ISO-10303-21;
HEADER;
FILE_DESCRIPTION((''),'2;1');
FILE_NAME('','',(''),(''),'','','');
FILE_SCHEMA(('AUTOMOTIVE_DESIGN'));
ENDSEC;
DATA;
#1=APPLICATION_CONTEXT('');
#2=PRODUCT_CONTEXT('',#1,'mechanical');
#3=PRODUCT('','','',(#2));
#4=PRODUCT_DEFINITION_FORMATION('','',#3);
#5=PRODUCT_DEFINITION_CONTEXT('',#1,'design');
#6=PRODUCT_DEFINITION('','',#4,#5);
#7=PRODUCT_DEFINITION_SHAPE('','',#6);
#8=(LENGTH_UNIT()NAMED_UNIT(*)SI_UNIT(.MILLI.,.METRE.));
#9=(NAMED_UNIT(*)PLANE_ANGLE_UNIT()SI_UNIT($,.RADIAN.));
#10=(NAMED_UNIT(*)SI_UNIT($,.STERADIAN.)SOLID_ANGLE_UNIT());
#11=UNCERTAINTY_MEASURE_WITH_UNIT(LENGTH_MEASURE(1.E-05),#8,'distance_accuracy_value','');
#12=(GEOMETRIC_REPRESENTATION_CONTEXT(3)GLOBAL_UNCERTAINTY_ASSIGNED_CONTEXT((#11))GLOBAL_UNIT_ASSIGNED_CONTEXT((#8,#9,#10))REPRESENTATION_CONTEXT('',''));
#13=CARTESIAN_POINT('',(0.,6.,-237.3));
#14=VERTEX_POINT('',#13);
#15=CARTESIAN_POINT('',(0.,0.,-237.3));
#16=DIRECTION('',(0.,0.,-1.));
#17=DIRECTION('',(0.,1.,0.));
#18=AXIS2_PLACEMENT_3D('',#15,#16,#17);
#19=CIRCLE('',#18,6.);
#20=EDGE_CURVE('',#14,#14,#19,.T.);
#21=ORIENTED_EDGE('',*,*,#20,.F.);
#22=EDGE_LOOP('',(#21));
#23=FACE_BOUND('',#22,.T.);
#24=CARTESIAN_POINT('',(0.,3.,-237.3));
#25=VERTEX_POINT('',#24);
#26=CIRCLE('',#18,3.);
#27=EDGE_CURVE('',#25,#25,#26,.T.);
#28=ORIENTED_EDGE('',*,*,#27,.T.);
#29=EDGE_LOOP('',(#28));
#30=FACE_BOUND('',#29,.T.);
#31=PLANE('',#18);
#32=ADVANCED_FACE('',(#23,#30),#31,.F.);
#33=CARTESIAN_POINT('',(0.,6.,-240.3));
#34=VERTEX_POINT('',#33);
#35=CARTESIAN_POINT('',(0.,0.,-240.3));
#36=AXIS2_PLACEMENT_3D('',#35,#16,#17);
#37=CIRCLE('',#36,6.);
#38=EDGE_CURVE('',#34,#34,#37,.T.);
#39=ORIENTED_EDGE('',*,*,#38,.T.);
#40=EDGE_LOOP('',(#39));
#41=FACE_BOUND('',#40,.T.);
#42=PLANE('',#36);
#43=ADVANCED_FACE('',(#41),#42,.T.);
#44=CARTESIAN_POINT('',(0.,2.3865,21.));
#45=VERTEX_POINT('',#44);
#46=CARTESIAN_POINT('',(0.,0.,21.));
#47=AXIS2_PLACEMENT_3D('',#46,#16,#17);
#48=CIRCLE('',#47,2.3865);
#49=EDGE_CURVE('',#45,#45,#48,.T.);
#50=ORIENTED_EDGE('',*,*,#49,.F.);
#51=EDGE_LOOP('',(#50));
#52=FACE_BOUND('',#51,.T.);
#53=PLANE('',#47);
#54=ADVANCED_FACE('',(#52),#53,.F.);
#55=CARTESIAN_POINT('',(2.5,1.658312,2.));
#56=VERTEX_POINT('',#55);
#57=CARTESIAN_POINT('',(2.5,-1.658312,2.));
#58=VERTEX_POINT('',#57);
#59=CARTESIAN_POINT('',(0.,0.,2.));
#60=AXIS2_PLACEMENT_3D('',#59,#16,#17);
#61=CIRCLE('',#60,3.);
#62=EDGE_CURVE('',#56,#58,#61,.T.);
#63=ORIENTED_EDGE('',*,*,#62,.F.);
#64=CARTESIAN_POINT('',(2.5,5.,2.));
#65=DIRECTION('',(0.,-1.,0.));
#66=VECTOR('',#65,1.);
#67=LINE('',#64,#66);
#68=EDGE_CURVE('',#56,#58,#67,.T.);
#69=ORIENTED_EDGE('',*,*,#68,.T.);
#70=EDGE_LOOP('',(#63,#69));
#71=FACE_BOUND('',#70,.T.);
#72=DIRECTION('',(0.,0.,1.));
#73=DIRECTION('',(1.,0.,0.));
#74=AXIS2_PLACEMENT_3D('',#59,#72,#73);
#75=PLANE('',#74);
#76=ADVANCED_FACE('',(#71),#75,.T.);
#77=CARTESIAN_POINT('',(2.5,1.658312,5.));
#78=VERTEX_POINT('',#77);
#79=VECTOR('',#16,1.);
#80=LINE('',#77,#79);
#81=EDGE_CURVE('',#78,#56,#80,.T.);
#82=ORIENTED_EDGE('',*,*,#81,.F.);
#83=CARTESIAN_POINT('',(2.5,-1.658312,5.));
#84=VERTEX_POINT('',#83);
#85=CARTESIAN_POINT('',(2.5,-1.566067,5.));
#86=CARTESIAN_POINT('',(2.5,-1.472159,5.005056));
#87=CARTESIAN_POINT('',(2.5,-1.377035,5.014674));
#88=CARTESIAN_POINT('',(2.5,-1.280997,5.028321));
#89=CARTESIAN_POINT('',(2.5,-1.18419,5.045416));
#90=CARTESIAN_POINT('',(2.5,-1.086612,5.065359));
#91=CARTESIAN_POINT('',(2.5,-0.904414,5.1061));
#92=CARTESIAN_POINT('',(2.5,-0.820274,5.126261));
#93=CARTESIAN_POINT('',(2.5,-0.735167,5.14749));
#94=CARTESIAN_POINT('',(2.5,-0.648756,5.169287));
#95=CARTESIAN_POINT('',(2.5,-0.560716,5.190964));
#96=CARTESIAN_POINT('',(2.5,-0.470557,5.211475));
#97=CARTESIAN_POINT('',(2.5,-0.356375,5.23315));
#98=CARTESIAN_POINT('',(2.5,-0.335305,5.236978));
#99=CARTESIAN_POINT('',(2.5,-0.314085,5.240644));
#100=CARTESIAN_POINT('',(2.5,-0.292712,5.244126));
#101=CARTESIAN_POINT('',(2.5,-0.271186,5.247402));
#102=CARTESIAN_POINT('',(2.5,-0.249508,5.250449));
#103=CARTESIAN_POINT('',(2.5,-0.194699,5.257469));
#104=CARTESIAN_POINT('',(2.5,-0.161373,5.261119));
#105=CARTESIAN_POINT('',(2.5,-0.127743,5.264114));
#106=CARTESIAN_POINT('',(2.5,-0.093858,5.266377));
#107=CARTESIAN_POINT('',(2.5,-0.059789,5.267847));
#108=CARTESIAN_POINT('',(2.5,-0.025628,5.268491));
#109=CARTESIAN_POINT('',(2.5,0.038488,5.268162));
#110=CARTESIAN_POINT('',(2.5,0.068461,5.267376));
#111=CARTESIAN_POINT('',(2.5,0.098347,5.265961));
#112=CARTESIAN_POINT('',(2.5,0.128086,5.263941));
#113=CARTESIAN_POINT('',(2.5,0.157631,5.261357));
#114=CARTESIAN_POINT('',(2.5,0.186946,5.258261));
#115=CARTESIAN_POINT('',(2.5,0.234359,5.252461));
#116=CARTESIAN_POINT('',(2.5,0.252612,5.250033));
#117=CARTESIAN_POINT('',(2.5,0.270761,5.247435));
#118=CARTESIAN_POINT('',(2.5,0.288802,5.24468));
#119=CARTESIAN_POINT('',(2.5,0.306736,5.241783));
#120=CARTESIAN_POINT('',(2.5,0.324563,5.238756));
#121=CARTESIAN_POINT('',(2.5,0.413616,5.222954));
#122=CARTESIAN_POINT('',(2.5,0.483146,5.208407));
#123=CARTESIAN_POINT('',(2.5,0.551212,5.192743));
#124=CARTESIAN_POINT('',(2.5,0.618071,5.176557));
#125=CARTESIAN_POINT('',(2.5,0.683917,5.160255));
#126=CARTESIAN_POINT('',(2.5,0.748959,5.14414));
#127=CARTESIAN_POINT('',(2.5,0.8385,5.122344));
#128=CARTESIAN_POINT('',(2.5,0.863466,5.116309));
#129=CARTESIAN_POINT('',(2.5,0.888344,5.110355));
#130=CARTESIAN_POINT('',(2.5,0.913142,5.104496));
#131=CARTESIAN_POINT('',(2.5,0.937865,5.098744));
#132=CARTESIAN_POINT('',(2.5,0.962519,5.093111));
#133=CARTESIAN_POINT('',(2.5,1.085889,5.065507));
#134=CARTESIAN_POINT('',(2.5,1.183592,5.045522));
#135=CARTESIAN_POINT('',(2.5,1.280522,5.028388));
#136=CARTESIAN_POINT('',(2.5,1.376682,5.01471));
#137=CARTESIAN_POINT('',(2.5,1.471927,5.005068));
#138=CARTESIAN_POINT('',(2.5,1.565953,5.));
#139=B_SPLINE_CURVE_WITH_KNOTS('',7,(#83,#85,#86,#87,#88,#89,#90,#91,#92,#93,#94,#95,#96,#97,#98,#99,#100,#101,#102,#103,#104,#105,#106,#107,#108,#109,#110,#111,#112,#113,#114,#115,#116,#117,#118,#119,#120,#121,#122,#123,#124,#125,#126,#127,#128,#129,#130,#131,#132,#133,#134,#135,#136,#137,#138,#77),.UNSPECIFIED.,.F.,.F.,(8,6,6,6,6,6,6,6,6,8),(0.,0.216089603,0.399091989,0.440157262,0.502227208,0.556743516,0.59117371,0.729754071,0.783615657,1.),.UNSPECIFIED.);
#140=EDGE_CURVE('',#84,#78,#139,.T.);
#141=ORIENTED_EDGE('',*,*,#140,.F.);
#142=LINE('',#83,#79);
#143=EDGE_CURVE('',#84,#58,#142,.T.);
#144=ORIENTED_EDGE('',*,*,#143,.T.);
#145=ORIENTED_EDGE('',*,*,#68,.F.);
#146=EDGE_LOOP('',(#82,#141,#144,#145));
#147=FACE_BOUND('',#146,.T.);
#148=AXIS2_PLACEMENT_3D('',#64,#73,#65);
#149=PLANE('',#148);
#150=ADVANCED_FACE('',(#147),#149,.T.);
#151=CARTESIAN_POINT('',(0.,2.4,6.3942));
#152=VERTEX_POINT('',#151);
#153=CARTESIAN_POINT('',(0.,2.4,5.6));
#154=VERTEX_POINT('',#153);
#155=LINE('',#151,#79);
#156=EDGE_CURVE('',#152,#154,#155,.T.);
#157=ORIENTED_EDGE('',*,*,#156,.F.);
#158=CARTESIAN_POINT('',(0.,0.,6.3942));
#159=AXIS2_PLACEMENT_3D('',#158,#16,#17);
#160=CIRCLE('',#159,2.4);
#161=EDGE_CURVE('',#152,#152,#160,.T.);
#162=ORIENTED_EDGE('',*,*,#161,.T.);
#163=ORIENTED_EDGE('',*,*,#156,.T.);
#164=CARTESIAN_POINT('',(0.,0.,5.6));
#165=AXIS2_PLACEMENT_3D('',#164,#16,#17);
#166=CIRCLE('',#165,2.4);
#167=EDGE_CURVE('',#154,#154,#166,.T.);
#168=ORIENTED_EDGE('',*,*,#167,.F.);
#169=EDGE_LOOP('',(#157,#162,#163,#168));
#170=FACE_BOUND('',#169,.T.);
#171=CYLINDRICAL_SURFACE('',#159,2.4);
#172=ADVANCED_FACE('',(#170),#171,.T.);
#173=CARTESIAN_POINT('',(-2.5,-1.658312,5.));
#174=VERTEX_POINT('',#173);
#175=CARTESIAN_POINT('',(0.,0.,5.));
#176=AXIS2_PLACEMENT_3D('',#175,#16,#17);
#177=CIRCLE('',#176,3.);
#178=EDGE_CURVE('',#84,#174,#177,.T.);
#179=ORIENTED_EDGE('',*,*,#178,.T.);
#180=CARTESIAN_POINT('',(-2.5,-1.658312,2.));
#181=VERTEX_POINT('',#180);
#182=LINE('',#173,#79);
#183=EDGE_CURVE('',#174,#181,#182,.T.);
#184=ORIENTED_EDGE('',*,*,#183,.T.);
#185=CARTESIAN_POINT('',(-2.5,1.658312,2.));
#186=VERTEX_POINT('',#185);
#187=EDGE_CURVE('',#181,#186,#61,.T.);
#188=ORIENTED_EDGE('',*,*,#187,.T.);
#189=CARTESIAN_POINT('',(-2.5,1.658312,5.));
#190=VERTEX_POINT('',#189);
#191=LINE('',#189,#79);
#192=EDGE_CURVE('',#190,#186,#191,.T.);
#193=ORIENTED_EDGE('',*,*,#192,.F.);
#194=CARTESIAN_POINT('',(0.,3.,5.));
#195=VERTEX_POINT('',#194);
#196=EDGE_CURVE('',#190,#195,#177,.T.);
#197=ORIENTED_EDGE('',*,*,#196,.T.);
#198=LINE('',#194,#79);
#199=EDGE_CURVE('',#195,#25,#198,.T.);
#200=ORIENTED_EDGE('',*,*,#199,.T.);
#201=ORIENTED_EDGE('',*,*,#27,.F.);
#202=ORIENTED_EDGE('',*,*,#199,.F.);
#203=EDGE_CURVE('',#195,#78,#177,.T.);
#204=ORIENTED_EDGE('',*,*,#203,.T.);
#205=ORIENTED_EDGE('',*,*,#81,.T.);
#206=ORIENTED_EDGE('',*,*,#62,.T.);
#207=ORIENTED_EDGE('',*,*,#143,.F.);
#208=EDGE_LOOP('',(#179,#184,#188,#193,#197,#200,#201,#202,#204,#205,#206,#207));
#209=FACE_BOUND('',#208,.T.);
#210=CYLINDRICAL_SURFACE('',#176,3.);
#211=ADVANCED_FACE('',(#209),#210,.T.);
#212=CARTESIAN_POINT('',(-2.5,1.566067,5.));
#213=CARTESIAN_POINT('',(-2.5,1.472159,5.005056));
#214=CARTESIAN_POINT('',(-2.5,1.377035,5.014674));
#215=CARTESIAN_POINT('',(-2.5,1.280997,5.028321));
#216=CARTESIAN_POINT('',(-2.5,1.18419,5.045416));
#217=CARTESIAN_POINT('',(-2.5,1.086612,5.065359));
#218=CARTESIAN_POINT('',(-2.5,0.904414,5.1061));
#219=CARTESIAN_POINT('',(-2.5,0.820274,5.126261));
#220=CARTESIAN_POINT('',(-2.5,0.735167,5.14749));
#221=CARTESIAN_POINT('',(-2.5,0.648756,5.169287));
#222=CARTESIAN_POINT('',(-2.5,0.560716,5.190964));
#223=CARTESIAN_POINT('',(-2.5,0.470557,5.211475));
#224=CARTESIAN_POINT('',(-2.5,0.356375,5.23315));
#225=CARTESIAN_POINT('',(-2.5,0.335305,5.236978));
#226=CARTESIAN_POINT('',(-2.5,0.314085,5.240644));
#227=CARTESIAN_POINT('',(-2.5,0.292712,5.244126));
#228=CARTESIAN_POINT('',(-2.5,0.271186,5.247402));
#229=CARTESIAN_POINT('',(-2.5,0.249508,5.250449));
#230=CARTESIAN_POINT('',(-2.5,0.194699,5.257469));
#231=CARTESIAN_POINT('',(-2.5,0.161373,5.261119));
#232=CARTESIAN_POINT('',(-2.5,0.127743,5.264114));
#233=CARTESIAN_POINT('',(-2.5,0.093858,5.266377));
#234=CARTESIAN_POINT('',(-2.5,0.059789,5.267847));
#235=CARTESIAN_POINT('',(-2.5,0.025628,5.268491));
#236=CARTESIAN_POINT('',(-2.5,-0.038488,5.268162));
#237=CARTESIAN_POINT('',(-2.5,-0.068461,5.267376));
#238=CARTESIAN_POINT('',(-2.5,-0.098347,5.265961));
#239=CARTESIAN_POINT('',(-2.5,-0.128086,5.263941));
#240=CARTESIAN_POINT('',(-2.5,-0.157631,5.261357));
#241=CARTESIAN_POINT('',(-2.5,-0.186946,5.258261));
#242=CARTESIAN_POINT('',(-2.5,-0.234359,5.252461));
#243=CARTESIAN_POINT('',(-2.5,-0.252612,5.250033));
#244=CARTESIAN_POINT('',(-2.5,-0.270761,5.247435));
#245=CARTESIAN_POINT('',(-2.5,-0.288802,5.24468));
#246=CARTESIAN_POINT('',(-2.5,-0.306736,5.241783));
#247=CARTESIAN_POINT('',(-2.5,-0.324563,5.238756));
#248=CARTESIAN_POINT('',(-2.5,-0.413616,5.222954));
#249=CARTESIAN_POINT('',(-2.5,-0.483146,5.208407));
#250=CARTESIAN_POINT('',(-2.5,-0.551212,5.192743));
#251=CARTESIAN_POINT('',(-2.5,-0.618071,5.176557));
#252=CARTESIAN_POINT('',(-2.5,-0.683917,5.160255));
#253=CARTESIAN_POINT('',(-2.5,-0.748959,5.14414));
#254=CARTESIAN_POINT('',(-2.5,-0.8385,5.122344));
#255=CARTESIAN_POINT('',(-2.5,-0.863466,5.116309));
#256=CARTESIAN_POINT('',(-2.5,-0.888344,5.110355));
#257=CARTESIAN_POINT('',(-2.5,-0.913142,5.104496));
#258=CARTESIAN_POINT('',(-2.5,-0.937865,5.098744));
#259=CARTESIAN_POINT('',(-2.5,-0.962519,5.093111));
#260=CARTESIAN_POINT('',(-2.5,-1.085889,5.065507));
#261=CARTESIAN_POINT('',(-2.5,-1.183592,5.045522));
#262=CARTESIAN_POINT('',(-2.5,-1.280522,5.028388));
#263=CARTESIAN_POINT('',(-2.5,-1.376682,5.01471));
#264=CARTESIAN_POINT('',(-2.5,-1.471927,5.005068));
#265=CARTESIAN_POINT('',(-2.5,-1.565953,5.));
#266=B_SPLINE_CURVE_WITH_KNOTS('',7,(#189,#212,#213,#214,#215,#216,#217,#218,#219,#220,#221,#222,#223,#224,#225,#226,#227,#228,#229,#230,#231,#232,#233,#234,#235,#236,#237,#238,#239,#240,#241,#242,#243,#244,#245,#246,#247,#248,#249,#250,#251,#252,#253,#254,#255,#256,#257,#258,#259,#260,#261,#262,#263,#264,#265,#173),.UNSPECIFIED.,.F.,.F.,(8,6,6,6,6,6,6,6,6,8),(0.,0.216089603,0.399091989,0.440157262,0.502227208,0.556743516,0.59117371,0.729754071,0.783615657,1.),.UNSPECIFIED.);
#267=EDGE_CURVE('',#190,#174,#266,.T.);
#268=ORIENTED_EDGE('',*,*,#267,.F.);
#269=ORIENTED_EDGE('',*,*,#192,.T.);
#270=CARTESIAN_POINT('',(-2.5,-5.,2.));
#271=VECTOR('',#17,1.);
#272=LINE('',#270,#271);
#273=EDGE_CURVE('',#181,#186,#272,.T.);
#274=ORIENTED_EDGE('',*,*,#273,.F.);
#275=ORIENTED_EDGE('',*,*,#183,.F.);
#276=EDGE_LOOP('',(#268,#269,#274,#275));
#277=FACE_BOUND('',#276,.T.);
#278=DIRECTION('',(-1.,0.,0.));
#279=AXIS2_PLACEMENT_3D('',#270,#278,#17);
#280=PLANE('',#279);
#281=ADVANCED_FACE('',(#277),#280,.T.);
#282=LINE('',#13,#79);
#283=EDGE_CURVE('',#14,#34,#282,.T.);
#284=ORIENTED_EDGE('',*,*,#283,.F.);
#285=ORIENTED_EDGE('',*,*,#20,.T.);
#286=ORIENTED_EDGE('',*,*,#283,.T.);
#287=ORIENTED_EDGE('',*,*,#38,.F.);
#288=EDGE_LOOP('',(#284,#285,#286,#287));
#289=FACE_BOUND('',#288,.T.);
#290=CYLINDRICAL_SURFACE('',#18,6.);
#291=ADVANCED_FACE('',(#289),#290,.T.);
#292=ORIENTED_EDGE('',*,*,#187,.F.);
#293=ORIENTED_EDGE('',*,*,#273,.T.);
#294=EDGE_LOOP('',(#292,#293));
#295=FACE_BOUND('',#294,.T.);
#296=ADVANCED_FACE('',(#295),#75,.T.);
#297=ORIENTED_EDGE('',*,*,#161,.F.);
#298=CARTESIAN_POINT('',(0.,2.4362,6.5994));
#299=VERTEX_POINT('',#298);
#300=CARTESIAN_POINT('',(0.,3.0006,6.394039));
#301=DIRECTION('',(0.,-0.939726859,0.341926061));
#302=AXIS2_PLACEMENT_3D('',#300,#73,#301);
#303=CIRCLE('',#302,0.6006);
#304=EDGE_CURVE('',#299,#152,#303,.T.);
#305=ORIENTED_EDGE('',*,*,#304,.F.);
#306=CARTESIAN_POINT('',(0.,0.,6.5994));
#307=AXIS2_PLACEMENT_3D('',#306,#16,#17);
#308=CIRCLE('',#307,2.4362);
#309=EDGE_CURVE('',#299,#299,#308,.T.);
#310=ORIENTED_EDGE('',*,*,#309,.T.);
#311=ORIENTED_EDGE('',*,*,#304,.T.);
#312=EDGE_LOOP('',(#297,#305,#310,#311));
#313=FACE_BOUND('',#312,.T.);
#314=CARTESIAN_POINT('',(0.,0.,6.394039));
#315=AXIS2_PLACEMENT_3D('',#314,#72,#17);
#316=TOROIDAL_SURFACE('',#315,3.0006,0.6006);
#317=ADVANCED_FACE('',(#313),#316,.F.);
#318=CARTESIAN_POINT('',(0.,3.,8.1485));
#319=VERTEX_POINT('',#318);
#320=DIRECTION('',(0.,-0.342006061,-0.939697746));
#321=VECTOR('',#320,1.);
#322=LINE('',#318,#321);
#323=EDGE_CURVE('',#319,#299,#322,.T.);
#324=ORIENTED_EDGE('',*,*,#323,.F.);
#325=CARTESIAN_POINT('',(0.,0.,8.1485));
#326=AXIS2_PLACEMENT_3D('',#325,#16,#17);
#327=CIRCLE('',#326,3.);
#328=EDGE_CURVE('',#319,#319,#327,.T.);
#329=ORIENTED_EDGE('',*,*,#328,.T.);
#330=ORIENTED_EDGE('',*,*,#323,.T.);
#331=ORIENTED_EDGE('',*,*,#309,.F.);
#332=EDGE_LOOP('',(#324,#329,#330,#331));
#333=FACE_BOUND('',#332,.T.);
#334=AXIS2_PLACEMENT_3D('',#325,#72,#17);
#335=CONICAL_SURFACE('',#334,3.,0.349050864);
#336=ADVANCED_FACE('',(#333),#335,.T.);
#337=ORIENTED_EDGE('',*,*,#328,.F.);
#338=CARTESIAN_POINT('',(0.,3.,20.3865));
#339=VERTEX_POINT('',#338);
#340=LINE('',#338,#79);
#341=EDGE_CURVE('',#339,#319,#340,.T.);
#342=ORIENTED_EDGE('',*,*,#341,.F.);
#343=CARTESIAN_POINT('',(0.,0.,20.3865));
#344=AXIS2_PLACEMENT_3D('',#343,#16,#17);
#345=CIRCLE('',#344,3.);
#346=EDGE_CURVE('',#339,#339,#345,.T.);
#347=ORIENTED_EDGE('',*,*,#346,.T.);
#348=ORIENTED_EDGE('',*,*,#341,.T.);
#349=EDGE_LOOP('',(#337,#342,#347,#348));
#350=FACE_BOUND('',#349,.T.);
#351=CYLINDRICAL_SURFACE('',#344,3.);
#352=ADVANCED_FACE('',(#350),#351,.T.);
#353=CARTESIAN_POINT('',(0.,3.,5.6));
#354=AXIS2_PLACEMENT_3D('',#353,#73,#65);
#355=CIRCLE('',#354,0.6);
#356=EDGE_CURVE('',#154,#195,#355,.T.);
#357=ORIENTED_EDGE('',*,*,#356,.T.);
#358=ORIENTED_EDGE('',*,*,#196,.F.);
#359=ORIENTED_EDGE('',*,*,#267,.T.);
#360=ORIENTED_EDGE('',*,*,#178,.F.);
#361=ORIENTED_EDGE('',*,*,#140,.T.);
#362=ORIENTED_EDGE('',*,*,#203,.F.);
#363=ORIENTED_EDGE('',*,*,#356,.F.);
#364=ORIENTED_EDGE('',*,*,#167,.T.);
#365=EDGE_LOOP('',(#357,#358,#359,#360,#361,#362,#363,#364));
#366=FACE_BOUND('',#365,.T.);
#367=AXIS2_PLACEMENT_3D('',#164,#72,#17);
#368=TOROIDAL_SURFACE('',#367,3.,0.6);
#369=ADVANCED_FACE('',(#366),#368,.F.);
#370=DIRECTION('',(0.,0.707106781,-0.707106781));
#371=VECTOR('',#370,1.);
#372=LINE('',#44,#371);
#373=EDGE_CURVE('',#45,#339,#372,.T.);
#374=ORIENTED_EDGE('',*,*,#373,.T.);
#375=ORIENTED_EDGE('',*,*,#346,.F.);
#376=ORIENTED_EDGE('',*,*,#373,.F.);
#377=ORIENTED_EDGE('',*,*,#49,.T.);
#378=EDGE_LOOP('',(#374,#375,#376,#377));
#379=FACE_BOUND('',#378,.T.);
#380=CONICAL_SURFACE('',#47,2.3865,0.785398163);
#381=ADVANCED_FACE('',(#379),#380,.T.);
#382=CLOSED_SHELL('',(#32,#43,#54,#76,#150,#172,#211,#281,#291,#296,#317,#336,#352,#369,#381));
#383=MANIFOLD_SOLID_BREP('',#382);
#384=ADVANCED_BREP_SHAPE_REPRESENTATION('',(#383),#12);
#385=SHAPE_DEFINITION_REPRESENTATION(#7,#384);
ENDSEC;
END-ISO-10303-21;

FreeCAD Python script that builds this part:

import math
import FreeCAD as App
import Part
import Sketcher
from FreeCAD import Vector
Q = App.Units.Quantity


def add_polygon(sketch, points):
    """Adds a closed chain of lines whose ends are joined by coincident constraints."""
    first, n = sketch.GeometryCount, len(points)
    for a, b in zip(points, points[1:] + points[:1]):
        sketch.addGeometry(Part.LineSegment(App.Vector(*a, 0), App.Vector(*b, 0)), False)
    for i in range(n):
        sketch.addConstraint(Sketcher.Constraint("Coincident", first + i, 2, first + (i + 1) % n, 1))

doc = App.newDocument("Part")
body = doc.addObject("PartDesign::Body", "Body")

sketch1 = body.newObject("Sketcher::SketchObject", "Sketch")
sketch1.AttachmentSupport = (doc.getObject("YZ_Plane"), [""])
sketch1.MapMode = "FlatFace"
add_polygon(sketch1, [(0, 5), (0, -240.3), (6, -240.3), (6, -237.3), (3, -237.3), (3, 5)])
sketch1.addConstraint([
    Sketcher.Constraint("Vertical", 0),
    Sketcher.Constraint("Horizontal", 1),
    Sketcher.Constraint("Vertical", 2),
    Sketcher.Constraint("Horizontal", 3),
    Sketcher.Constraint("Vertical", 4),
    Sketcher.Constraint("Horizontal", 5),
    Sketcher.Constraint("PointOnObject", 0, 2, -2),
    Sketcher.Constraint("Equal", 3, 5),
    Sketcher.Constraint("Equal", 5, 2),
    Sketcher.Constraint("DistanceX", 1, 1, 1, 2, Q("6 mm")),
    Sketcher.Constraint("DistanceY", 0, 2, 0, 1, Q("245.3 mm")),
    Sketcher.Constraint("DistanceY", -1, 1, 4, 2, Q("5 mm")),
])
revolution = body.newObject("PartDesign::Revolution", "Revolution")
revolution.Profile = sketch1
revolution.ReferenceAxis = (sketch1, ["V_Axis"])
revolution.Angle = 360

sketch2 = body.newObject("Sketcher::SketchObject", "Sketch001")
sketch2.AttachmentSupport = (doc.getObject("YZ_Plane"), [""])
sketch2.MapMode = "FlatFace"
sketch2.addGeometry([
    Part.LineSegment(Vector(0, 21, 0), Vector(0, 4, 0)),
    Part.LineSegment(Vector(0, 4, 0), Vector(3, 4, 0)),
    Part.LineSegment(Vector(3, 4, 0), Vector(3, 5, 0)),
    Part.ArcOfCircle(Part.Circle(Vector(3, 5.6, 0), Vector(0, 0, 1), 0.6), math.radians(180), math.radians(270)),
    Part.LineSegment(Vector(2.4, 5.6, 0), Vector(2.4, 6.39, 0)),
    Part.ArcOfCircle(Part.Circle(Vector(3, 6.39, 0), Vector(0, 0, 1), 0.6), math.radians(160), math.radians(180)),
    Part.LineSegment(Vector(2.44, 6.6, 0), Vector(3, 8.15, 0)),
    Part.LineSegment(Vector(3, 8.15, 0), Vector(3, 20.39, 0)),
    Part.LineSegment(Vector(3, 20.39, 0), Vector(2.39, 21, 0)),
    Part.LineSegment(Vector(2.39, 21, 0), Vector(0, 21, 0)),
], False)
sketch2.addConstraint([
    Sketcher.Constraint("Coincident", 0, 2, 1, 1),
    Sketcher.Constraint("Coincident", 1, 2, 2, 1),
    Sketcher.Constraint("Coincident", 2, 2, 3, 2),
    Sketcher.Constraint("Tangent", 3, 1, 4, 1),
    Sketcher.Constraint("Tangent", 4, 2, 5, 2),
    Sketcher.Constraint("Tangent", 5, 1, 6, 1),
    Sketcher.Constraint("Coincident", 6, 2, 7, 1),
    Sketcher.Constraint("Coincident", 7, 2, 8, 1),
    Sketcher.Constraint("Coincident", 8, 2, 9, 1),
    Sketcher.Constraint("Coincident", 9, 2, 0, 1),
    Sketcher.Constraint("Vertical", 0),
    Sketcher.Constraint("Horizontal", 1),
    Sketcher.Constraint("Vertical", 2),
    Sketcher.Constraint("Vertical", 4),
    Sketcher.Constraint("Vertical", 7),
    Sketcher.Constraint("Horizontal", 9),
    Sketcher.Constraint("Equal", 3, 5),
    Sketcher.Constraint("PointOnObject", 0, 2, -2),
    Sketcher.Constraint("Vertical", 5, 3, 1, 2),
    Sketcher.Constraint("Vertical", 2, 2, 6, 2),
    Sketcher.Constraint("Radius", 3, Q("0.6 mm")),
    Sketcher.Constraint("DistanceX", 1, 1, 1, 2, Q("3 mm")),
    Sketcher.Constraint("DistanceY", 0, 2, 0, 1, Q("17 mm")),
    Sketcher.Constraint("DistanceY", 2, 1, 2, 2, Q("1 mm")),
    Sketcher.Constraint("Angle", 6, Q("70.0009 deg")),
    Sketcher.Constraint("Angle", 8, Q("135 deg")),
    Sketcher.Constraint("DistanceY", -1, 1, 0, 2, Q("4 mm")),
    Sketcher.Constraint("DistanceY", 7, 1, 7, 2, Q("12.238 mm")),
    Sketcher.Constraint("DistanceX", 9, 2, 9, 1, Q("2.3865 mm")),
])
revolution2 = body.newObject("PartDesign::Revolution", "Revolution001")
revolution2.Profile = sketch2
revolution2.ReferenceAxis = (sketch2, ["V_Axis"])
revolution2.Angle = 360

sketch3 = body.newObject("Sketcher::SketchObject", "Sketch002")
sketch3.AttachmentSupport = (doc.getObject("XY_Plane"), [""])
sketch3.MapMode = "FlatFace"
sketch3.AttachmentOffset = App.Placement(Vector(0, 0, 2), App.Rotation())
add_polygon(sketch3, [(5, 10), (-5, 10), (-5, -5), (-2.5, -5), (-2.5, 5), (2.5, 5), (2.5, -5), (5, -5)])
sketch3.addConstraint([
    Sketcher.Constraint("Horizontal", 0),
    Sketcher.Constraint("Vertical", 1),
    Sketcher.Constraint("Horizontal", 2),
    Sketcher.Constraint("Vertical", 3),
    Sketcher.Constraint("Horizontal", 4),
    Sketcher.Constraint("Vertical", 5),
    Sketcher.Constraint("Horizontal", 6),
    Sketcher.Constraint("Vertical", 7),
    Sketcher.Constraint("Symmetric", 2, 2, 4, 2, -1, 1),
    Sketcher.Constraint("Symmetric", 1, 2, 6, 2, -2),
    Sketcher.Constraint("Equal", 0, 3),
    Sketcher.Constraint("DistanceX", 0, 2, 0, 1, Q("10 mm")),
    Sketcher.Constraint("DistanceX", 4, 1, 4, 2, Q("5 mm")),
    Sketcher.Constraint("DistanceY", 1, 2, 1, 1, Q("15 mm")),
])
pocket1 = body.newObject("PartDesign::Pocket", "Pocket")
pocket1.Profile = sketch3
pocket1.Length = 4
pocket1.Reversed = True

doc.recompute()
